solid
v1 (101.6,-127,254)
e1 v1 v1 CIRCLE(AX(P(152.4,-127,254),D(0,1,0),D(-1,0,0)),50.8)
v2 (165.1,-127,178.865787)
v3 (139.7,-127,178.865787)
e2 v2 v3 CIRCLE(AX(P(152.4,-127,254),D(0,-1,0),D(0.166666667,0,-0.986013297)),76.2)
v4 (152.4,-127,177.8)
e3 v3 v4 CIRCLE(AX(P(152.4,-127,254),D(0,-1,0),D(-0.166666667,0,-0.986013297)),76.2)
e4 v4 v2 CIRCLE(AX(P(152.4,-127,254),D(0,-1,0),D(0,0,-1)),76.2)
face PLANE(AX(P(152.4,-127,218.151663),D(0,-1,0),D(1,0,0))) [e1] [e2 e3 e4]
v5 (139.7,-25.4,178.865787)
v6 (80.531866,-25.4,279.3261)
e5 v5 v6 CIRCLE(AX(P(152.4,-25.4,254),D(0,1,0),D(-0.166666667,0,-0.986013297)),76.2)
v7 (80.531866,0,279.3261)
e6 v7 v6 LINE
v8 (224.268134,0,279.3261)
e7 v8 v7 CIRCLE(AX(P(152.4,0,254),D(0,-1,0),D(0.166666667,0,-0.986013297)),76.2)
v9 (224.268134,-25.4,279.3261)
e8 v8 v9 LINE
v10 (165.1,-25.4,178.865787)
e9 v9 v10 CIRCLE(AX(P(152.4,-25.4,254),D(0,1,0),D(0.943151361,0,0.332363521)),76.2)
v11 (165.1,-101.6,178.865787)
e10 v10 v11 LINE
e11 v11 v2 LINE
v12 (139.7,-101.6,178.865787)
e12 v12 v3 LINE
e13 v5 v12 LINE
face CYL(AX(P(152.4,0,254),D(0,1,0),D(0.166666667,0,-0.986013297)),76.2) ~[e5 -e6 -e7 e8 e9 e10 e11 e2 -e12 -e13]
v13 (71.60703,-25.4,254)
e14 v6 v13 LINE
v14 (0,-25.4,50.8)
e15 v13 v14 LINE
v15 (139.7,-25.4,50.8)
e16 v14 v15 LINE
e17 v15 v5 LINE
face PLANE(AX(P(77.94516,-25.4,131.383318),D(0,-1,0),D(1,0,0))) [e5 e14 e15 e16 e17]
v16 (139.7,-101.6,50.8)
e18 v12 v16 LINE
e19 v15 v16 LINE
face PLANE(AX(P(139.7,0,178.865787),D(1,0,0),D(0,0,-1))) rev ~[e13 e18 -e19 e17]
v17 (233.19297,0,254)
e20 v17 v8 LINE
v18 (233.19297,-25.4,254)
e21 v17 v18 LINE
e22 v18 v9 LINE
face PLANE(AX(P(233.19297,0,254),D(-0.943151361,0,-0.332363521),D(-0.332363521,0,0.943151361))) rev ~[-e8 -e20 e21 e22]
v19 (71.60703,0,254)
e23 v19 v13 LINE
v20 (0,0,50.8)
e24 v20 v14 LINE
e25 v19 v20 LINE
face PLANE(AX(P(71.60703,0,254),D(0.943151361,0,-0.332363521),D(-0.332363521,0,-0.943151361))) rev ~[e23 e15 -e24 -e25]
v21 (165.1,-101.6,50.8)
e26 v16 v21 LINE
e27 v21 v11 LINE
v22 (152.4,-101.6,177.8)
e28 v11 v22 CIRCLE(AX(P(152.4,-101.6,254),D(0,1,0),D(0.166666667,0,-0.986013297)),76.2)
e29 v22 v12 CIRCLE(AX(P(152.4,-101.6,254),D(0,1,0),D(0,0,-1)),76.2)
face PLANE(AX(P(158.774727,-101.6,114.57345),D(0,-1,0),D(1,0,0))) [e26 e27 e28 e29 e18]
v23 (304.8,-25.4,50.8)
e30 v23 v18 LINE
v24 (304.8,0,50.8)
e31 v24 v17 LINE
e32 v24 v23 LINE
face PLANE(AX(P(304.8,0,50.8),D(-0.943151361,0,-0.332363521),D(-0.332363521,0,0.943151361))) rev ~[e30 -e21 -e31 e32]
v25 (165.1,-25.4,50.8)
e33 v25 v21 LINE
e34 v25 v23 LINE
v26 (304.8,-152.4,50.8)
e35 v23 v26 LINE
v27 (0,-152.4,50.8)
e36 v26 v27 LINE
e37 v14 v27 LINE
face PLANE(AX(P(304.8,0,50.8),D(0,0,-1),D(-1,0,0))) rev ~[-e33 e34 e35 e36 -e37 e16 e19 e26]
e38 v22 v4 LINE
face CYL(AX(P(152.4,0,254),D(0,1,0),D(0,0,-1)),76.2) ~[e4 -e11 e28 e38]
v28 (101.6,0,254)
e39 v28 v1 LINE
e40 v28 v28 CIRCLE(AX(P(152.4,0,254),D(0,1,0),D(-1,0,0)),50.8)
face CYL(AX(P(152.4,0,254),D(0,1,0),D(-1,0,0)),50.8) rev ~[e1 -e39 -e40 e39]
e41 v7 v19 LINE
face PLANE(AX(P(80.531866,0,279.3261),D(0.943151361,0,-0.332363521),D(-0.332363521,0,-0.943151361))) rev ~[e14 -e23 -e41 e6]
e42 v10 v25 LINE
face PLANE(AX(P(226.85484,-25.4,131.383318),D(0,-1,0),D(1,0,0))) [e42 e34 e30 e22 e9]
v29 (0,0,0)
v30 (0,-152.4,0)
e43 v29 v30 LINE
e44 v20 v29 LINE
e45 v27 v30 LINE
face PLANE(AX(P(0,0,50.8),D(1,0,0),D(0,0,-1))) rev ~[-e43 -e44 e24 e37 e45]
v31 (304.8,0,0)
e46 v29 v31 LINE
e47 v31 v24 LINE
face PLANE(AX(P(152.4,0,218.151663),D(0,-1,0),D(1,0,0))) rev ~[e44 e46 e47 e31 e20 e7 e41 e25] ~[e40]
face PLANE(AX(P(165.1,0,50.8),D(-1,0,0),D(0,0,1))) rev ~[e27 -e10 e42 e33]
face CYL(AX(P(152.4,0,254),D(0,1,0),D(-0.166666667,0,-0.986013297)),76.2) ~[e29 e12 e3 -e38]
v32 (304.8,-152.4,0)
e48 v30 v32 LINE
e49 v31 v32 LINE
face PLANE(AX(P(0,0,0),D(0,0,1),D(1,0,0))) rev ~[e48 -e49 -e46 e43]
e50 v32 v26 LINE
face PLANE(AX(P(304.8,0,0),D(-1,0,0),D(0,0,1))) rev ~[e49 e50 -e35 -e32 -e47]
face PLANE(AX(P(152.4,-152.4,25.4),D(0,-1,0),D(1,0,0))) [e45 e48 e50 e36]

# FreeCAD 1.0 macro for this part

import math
import FreeCAD as App
import Part
import Sketcher

V = App.Vector
Q = App.Units.Quantity

doc = App.newDocument("Part")
params = doc.addObject("Spreadsheet::Sheet", "Params")
for row, (alias, value) in enumerate([
    ("sketch1_width", "12 in"),
    ("sketch1_height", "2 in"),
    ("pad1_length", "6 in"),
    ("sketch2_radius", "3 in"),
    ("sketch2_width", "5.5 in"),
    ("pad2_length", "1 in"),
    ("sketch3_radius", "3 in"),
    ("sketch3_width", "1 in"),
    ("pad3_length", "4 in"),
    ("sketch4_diameter", "4 in"),
    ("sketch4_radius", "3 in"),
    ("pad4_length", "5 in"),
], start=1):
    params.set(f"A{row}", alias)
    params.set(f"B{row}", "=" + value)
    params.setAlias(f"B{row}", alias)

body = doc.addObject("PartDesign::Body", "Body")

# Sketch on XZ plane
sketch1 = body.newObject("Sketcher::SketchObject", "Sketch")
sketch1.AttachmentSupport = (doc.getObject("XZ_Plane"), [""])
sketch1.MapMode = "FlatFace"
sketch1.addGeometry(Part.LineSegment(V(0, 50.8, 0), V(0, 0, 0)), False)
sketch1.addGeometry(Part.LineSegment(V(0, 0, 0), V(304.8, 0, 0)), False)
sketch1.addGeometry(Part.LineSegment(V(304.8, 0, 0), V(304.8, 50.8, 0)), False)
sketch1.addGeometry(Part.LineSegment(V(304.8, 50.8, 0), V(0, 50.8, 0)), False)
sketch1.addConstraint(Sketcher.Constraint("Coincident", 0, 2, 1, 1))
sketch1.addConstraint(Sketcher.Constraint("Coincident", 1, 2, 2, 1))
sketch1.addConstraint(Sketcher.Constraint("Coincident", 2, 2, 3, 1))
sketch1.addConstraint(Sketcher.Constraint("Coincident", 3, 2, 0, 1))
sketch1.addConstraint(Sketcher.Constraint("Vertical", 0))
sketch1.addConstraint(Sketcher.Constraint("Horizontal", 1))
sketch1.addConstraint(Sketcher.Constraint("Vertical", 2))
sketch1.addConstraint(Sketcher.Constraint("Horizontal", 3))
sketch1.addConstraint(Sketcher.Constraint("Coincident", 0, 2, -1, 1))
sketch1.addConstraint(Sketcher.Constraint("DistanceX", 1, 1, 1, 2, Q("12 in")))
sketch1.addConstraint(Sketcher.Constraint("DistanceY", 0, 2, 0, 1, Q("2 in")))
sketch1.setExpression("Constraints[9]", "Params.sketch1_width")
sketch1.setExpression("Constraints[10]", "Params.sketch1_height")
pad1 = body.newObject("PartDesign::Pad", "Pad")
pad1.Profile = sketch1
pad1.setExpression("Length", "Params.pad1_length")

# Sketch on XZ plane
sketch2 = body.newObject("Sketcher::SketchObject", "Sketch001")
sketch2.AttachmentSupport = (doc.getObject("XZ_Plane"), [""])
sketch2.MapMode = "FlatFace"
sketch2.addGeometry(Part.LineSegment(V(165.1, 50.8, 0), V(304.8, 50.8, 0)), False)
sketch2.addGeometry(Part.LineSegment(V(304.8, 50.8, 0), V(233.19297, 254, 0)), False)
sketch2.addGeometry(Part.LineSegment(V(233.19297, 254, 0), V(224.268134, 279.3261, 0)), False)
sketch2.addGeometry(Part.ArcOfCircle(Part.Circle(V(152.4, 254, 0), V(0, 0, 1), 76.2), math.radians(-80.405932), math.radians(19.412295)), False)
sketch2.addGeometry(Part.LineSegment(V(165.1, 178.865787, 0), V(165.1, 50.8, 0)), False)
sketch2.addGeometry(Part.LineSegment(V(71.60703, 254, 0), V(0, 50.8, 0)), False)
sketch2.addGeometry(Part.LineSegment(V(0, 50.8, 0), V(139.7, 50.8, 0)), False)
sketch2.addGeometry(Part.LineSegment(V(139.7, 50.8, 0), V(139.7, 178.865787, 0)), False)
sketch2.addGeometry(Part.ArcOfCircle(Part.Circle(V(152.4, 254, 0), V(0, 0, 1), 76.2), math.radians(160.587705), math.radians(260.405932)), False)
sketch2.addGeometry(Part.LineSegment(V(80.531866, 279.3261, 0), V(71.60703, 254, 0)), False)
sketch2.addConstraint(Sketcher.Constraint("Coincident", 0, 2, 1, 1))
sketch2.addConstraint(Sketcher.Constraint("Coincident", 1, 2, 2, 1))
sketch2.addConstraint(Sketcher.Constraint("Tangent", 2, 2, 3, 2))
sketch2.addConstraint(Sketcher.Constraint("Coincident", 3, 1, 4, 1))
sketch2.addConstraint(Sketcher.Constraint("Coincident", 4, 2, 0, 1))
sketch2.addConstraint(Sketcher.Constraint("Coincident", 5, 2, 6, 1))
sketch2.addConstraint(Sketcher.Constraint("Coincident", 6, 2, 7, 1))
sketch2.addConstraint(Sketcher.Constraint("Coincident", 7, 2, 8, 2))
sketch2.addConstraint(Sketcher.Constraint("Tangent", 8, 1, 9, 1))
sketch2.addConstraint(Sketcher.Constraint("Coincident", 9, 2, 5, 1))
sketch2.addConstraint(Sketcher.Constraint("Horizontal", 0))
sketch2.addConstraint(Sketcher.Constraint("Vertical", 4))
sketch2.addConstraint(Sketcher.Constraint("Horizontal", 6))
sketch2.addConstraint(Sketcher.Constraint("Vertical", 7))
sketch2.addConstraint(Sketcher.Constraint("Coincident", 8, 3, 3, 3))
sketch2.addConstraint(Sketcher.Constraint("Equal", 3, 8))
sketch2.addConstraint(Sketcher.Constraint("PointOnObject", 5, 2, -2))
sketch2.addConstraint(Sketcher.Constraint("Parallel", 1, 2))
sketch2.addConstraint(Sketcher.Constraint("Parallel", 5, 9))
sketch2.addConstraint(Sketcher.Constraint("Horizontal", 8, 3, 1, 2))
sketch2.addConstraint(Sketcher.Constraint("Horizontal", 4, 2, 5, 2))
sketch2.addConstraint(Sketcher.Constraint("Horizontal", 3, 1, 7, 2))
sketch2.addConstraint(Sketcher.Constraint("Horizontal", 2, 2, 8, 1))
sketch2.addConstraint(Sketcher.Constraint("Horizontal", 1, 2, 9, 2))
sketch2.addConstraint(Sketcher.Constraint("Radius", 3, Q("3 in")))
sketch2.addConstraint(Sketcher.Constraint("DistanceX", 0, 1, 0, 2, Q("5.5 in")))
sketch2.addConstraint(Sketcher.Constraint("DistanceX", -1, 1, 3, 3, Q("6 in")))
sketch2.addConstraint(Sketcher.Constraint("DistanceY", -1, 1, 3, 3, Q("10 in")))
sketch2.addConstraint(Sketcher.Constraint("DistanceY", -1, 1, 0, 2, Q("2 in")))
sketch2.setExpression("Constraints[24]", "Params.sketch2_radius")
sketch2.setExpression("Constraints[25]", "Params.sketch2_width")
pad2 = body.newObject("PartDesign::Pad", "Pad001")
pad2.Profile = sketch2
pad2.setExpression("Length", "Params.pad2_length")

# Sketch on XZ plane
sketch3 = body.newObject("Sketcher::SketchObject", "Sketch002")
sketch3.AttachmentSupport = (doc.getObject("XZ_Plane"), [""])
sketch3.MapMode = "FlatFace"
sketch3.addGeometry(Part.LineSegment(V(165.1, 50.8, 0), V(165.1, 178.865787, 0)), False)
sketch3.addGeometry(Part.ArcOfCircle(Part.Circle(V(152.4, 254, 0), V(0, 0, 1), 76.2), math.radians(-90), math.radians(-80.405932)), False)
sketch3.addGeometry(Part.ArcOfCircle(Part.Circle(V(152.4, 254, 0), V(0, 0, 1), 76.2), math.radians(-99.594068), math.radians(-90)), False)
sketch3.addGeometry(Part.LineSegment(V(139.7, 178.865787, 0), V(139.7, 50.8, 0)), False)
sketch3.addGeometry(Part.LineSegment(V(139.7, 50.8, 0), V(165.1, 50.8, 0)), False)
sketch3.addConstraint(Sketcher.Constraint("Coincident", 0, 2, 1, 2))
sketch3.addConstraint(Sketcher.Constraint("Tangent", 1, 1, 2, 2))
sketch3.addConstraint(Sketcher.Constraint("Coincident", 2, 1, 3, 1))
sketch3.addConstraint(Sketcher.Constraint("Coincident", 3, 2, 4, 1))
sketch3.addConstraint(Sketcher.Constraint("Coincident", 4, 2, 0, 1))
sketch3.addConstraint(Sketcher.Constraint("Vertical", 0))
sketch3.addConstraint(Sketcher.Constraint("Vertical", 3))
sketch3.addConstraint(Sketcher.Constraint("Horizontal", 4))
sketch3.addConstraint(Sketcher.Constraint("Equal", 1, 2))
sketch3.addConstraint(Sketcher.Constraint("Horizontal", 0, 2, 2, 1))
sketch3.addConstraint(Sketcher.Constraint("Vertical", 2, 3, 1, 1))
sketch3.addConstraint(Sketcher.Constraint("Radius", 1, Q("3 in")))
sketch3.addConstraint(Sketcher.Constraint("DistanceX", 4, 1, 4, 2, Q("1 in")))
sketch3.addConstraint(Sketcher.Constraint("DistanceX", -1, 1, 1, 3, Q("6 in")))
sketch3.addConstraint(Sketcher.Constraint("DistanceY", -1, 1, 1, 3, Q("10 in")))
sketch3.addConstraint(Sketcher.Constraint("DistanceY", -1, 1, 3, 2, Q("2 in")))
sketch3.setExpression("Constraints[11]", "Params.sketch3_radius")
sketch3.setExpression("Constraints[12]", "Params.sketch3_width")
pad3 = body.newObject("PartDesign::Pad", "Pad002")
pad3.Profile = sketch3
pad3.setExpression("Length", "Params.pad3_length")

# Sketch on XZ plane
sketch4 = body.newObject("Sketcher::SketchObject", "Sketch003")
sketch4.AttachmentSupport = (doc.getObject("XZ_Plane"), [""])
sketch4.MapMode = "FlatFace"
sketch4.addGeometry(Part.ArcOfCircle(Part.Circle(V(152.4, 254, 0), V(0, 0, 1), 76.2), math.radians(-80.405932), math.radians(260.405932)), False)
sketch4.addGeometry(Part.ArcOfCircle(Part.Circle(V(152.4, 254, 0), V(0, 0, 1), 76.2), math.radians(-99.594068), math.radians(-90)), False)
sketch4.addGeometry(Part.ArcOfCircle(Part.Circle(V(152.4, 254, 0), V(0, 0, 1), 76.2), math.radians(-90), math.radians(-80.405932)), False)
sketch4.addGeometry(Part.Circle(V(152.4, 254, 0), V(0, 0, 1), 50.8), False)
sketch4.addConstraint(Sketcher.Constraint("Tangent", 0, 2, 1, 1))
sketch4.addConstraint(Sketcher.Constraint("Tangent", 1, 2, 2, 1))
sketch4.addConstraint(Sketcher.Constraint("Coincident", 2, 2, 0, 1))
sketch4.addConstraint(Sketcher.Constraint("Coincident", 3, 3, 0, 3))
sketch4.addConstraint(Sketcher.Constraint("Equal", 0, 1))
sketch4.addConstraint(Sketcher.Constraint("Horizontal", 0, 2, 2, 2))
sketch4.addConstraint(Sketcher.Constraint("Vertical", 3, 3, 1, 2))
sketch4.addConstraint(Sketcher.Constraint("Diameter", 3, Q("4 in")))
sketch4.addConstraint(Sketcher.Constraint("Radius", 0, Q("3 in")))
sketch4.addConstraint(Sketcher.Constraint("DistanceX", -1, 1, 0, 3, Q("6 in")))
sketch4.addConstraint(Sketcher.Constraint("DistanceY", -1, 1, 0, 3, Q("10 in")))
sketch4.addConstraint(Sketcher.Constraint("DistanceX", 0, 2, 2, 2, Q("1 in")))
sketch4.setExpression("Constraints[7]", "Params.sketch4_diameter")
sketch4.setExpression("Constraints[8]", "Params.sketch4_radius")
pad4 = body.newObject("PartDesign::Pad", "Pad003")
pad4.Profile = sketch4
pad4.setExpression("Length", "Params.pad4_length")

doc.recompute()
